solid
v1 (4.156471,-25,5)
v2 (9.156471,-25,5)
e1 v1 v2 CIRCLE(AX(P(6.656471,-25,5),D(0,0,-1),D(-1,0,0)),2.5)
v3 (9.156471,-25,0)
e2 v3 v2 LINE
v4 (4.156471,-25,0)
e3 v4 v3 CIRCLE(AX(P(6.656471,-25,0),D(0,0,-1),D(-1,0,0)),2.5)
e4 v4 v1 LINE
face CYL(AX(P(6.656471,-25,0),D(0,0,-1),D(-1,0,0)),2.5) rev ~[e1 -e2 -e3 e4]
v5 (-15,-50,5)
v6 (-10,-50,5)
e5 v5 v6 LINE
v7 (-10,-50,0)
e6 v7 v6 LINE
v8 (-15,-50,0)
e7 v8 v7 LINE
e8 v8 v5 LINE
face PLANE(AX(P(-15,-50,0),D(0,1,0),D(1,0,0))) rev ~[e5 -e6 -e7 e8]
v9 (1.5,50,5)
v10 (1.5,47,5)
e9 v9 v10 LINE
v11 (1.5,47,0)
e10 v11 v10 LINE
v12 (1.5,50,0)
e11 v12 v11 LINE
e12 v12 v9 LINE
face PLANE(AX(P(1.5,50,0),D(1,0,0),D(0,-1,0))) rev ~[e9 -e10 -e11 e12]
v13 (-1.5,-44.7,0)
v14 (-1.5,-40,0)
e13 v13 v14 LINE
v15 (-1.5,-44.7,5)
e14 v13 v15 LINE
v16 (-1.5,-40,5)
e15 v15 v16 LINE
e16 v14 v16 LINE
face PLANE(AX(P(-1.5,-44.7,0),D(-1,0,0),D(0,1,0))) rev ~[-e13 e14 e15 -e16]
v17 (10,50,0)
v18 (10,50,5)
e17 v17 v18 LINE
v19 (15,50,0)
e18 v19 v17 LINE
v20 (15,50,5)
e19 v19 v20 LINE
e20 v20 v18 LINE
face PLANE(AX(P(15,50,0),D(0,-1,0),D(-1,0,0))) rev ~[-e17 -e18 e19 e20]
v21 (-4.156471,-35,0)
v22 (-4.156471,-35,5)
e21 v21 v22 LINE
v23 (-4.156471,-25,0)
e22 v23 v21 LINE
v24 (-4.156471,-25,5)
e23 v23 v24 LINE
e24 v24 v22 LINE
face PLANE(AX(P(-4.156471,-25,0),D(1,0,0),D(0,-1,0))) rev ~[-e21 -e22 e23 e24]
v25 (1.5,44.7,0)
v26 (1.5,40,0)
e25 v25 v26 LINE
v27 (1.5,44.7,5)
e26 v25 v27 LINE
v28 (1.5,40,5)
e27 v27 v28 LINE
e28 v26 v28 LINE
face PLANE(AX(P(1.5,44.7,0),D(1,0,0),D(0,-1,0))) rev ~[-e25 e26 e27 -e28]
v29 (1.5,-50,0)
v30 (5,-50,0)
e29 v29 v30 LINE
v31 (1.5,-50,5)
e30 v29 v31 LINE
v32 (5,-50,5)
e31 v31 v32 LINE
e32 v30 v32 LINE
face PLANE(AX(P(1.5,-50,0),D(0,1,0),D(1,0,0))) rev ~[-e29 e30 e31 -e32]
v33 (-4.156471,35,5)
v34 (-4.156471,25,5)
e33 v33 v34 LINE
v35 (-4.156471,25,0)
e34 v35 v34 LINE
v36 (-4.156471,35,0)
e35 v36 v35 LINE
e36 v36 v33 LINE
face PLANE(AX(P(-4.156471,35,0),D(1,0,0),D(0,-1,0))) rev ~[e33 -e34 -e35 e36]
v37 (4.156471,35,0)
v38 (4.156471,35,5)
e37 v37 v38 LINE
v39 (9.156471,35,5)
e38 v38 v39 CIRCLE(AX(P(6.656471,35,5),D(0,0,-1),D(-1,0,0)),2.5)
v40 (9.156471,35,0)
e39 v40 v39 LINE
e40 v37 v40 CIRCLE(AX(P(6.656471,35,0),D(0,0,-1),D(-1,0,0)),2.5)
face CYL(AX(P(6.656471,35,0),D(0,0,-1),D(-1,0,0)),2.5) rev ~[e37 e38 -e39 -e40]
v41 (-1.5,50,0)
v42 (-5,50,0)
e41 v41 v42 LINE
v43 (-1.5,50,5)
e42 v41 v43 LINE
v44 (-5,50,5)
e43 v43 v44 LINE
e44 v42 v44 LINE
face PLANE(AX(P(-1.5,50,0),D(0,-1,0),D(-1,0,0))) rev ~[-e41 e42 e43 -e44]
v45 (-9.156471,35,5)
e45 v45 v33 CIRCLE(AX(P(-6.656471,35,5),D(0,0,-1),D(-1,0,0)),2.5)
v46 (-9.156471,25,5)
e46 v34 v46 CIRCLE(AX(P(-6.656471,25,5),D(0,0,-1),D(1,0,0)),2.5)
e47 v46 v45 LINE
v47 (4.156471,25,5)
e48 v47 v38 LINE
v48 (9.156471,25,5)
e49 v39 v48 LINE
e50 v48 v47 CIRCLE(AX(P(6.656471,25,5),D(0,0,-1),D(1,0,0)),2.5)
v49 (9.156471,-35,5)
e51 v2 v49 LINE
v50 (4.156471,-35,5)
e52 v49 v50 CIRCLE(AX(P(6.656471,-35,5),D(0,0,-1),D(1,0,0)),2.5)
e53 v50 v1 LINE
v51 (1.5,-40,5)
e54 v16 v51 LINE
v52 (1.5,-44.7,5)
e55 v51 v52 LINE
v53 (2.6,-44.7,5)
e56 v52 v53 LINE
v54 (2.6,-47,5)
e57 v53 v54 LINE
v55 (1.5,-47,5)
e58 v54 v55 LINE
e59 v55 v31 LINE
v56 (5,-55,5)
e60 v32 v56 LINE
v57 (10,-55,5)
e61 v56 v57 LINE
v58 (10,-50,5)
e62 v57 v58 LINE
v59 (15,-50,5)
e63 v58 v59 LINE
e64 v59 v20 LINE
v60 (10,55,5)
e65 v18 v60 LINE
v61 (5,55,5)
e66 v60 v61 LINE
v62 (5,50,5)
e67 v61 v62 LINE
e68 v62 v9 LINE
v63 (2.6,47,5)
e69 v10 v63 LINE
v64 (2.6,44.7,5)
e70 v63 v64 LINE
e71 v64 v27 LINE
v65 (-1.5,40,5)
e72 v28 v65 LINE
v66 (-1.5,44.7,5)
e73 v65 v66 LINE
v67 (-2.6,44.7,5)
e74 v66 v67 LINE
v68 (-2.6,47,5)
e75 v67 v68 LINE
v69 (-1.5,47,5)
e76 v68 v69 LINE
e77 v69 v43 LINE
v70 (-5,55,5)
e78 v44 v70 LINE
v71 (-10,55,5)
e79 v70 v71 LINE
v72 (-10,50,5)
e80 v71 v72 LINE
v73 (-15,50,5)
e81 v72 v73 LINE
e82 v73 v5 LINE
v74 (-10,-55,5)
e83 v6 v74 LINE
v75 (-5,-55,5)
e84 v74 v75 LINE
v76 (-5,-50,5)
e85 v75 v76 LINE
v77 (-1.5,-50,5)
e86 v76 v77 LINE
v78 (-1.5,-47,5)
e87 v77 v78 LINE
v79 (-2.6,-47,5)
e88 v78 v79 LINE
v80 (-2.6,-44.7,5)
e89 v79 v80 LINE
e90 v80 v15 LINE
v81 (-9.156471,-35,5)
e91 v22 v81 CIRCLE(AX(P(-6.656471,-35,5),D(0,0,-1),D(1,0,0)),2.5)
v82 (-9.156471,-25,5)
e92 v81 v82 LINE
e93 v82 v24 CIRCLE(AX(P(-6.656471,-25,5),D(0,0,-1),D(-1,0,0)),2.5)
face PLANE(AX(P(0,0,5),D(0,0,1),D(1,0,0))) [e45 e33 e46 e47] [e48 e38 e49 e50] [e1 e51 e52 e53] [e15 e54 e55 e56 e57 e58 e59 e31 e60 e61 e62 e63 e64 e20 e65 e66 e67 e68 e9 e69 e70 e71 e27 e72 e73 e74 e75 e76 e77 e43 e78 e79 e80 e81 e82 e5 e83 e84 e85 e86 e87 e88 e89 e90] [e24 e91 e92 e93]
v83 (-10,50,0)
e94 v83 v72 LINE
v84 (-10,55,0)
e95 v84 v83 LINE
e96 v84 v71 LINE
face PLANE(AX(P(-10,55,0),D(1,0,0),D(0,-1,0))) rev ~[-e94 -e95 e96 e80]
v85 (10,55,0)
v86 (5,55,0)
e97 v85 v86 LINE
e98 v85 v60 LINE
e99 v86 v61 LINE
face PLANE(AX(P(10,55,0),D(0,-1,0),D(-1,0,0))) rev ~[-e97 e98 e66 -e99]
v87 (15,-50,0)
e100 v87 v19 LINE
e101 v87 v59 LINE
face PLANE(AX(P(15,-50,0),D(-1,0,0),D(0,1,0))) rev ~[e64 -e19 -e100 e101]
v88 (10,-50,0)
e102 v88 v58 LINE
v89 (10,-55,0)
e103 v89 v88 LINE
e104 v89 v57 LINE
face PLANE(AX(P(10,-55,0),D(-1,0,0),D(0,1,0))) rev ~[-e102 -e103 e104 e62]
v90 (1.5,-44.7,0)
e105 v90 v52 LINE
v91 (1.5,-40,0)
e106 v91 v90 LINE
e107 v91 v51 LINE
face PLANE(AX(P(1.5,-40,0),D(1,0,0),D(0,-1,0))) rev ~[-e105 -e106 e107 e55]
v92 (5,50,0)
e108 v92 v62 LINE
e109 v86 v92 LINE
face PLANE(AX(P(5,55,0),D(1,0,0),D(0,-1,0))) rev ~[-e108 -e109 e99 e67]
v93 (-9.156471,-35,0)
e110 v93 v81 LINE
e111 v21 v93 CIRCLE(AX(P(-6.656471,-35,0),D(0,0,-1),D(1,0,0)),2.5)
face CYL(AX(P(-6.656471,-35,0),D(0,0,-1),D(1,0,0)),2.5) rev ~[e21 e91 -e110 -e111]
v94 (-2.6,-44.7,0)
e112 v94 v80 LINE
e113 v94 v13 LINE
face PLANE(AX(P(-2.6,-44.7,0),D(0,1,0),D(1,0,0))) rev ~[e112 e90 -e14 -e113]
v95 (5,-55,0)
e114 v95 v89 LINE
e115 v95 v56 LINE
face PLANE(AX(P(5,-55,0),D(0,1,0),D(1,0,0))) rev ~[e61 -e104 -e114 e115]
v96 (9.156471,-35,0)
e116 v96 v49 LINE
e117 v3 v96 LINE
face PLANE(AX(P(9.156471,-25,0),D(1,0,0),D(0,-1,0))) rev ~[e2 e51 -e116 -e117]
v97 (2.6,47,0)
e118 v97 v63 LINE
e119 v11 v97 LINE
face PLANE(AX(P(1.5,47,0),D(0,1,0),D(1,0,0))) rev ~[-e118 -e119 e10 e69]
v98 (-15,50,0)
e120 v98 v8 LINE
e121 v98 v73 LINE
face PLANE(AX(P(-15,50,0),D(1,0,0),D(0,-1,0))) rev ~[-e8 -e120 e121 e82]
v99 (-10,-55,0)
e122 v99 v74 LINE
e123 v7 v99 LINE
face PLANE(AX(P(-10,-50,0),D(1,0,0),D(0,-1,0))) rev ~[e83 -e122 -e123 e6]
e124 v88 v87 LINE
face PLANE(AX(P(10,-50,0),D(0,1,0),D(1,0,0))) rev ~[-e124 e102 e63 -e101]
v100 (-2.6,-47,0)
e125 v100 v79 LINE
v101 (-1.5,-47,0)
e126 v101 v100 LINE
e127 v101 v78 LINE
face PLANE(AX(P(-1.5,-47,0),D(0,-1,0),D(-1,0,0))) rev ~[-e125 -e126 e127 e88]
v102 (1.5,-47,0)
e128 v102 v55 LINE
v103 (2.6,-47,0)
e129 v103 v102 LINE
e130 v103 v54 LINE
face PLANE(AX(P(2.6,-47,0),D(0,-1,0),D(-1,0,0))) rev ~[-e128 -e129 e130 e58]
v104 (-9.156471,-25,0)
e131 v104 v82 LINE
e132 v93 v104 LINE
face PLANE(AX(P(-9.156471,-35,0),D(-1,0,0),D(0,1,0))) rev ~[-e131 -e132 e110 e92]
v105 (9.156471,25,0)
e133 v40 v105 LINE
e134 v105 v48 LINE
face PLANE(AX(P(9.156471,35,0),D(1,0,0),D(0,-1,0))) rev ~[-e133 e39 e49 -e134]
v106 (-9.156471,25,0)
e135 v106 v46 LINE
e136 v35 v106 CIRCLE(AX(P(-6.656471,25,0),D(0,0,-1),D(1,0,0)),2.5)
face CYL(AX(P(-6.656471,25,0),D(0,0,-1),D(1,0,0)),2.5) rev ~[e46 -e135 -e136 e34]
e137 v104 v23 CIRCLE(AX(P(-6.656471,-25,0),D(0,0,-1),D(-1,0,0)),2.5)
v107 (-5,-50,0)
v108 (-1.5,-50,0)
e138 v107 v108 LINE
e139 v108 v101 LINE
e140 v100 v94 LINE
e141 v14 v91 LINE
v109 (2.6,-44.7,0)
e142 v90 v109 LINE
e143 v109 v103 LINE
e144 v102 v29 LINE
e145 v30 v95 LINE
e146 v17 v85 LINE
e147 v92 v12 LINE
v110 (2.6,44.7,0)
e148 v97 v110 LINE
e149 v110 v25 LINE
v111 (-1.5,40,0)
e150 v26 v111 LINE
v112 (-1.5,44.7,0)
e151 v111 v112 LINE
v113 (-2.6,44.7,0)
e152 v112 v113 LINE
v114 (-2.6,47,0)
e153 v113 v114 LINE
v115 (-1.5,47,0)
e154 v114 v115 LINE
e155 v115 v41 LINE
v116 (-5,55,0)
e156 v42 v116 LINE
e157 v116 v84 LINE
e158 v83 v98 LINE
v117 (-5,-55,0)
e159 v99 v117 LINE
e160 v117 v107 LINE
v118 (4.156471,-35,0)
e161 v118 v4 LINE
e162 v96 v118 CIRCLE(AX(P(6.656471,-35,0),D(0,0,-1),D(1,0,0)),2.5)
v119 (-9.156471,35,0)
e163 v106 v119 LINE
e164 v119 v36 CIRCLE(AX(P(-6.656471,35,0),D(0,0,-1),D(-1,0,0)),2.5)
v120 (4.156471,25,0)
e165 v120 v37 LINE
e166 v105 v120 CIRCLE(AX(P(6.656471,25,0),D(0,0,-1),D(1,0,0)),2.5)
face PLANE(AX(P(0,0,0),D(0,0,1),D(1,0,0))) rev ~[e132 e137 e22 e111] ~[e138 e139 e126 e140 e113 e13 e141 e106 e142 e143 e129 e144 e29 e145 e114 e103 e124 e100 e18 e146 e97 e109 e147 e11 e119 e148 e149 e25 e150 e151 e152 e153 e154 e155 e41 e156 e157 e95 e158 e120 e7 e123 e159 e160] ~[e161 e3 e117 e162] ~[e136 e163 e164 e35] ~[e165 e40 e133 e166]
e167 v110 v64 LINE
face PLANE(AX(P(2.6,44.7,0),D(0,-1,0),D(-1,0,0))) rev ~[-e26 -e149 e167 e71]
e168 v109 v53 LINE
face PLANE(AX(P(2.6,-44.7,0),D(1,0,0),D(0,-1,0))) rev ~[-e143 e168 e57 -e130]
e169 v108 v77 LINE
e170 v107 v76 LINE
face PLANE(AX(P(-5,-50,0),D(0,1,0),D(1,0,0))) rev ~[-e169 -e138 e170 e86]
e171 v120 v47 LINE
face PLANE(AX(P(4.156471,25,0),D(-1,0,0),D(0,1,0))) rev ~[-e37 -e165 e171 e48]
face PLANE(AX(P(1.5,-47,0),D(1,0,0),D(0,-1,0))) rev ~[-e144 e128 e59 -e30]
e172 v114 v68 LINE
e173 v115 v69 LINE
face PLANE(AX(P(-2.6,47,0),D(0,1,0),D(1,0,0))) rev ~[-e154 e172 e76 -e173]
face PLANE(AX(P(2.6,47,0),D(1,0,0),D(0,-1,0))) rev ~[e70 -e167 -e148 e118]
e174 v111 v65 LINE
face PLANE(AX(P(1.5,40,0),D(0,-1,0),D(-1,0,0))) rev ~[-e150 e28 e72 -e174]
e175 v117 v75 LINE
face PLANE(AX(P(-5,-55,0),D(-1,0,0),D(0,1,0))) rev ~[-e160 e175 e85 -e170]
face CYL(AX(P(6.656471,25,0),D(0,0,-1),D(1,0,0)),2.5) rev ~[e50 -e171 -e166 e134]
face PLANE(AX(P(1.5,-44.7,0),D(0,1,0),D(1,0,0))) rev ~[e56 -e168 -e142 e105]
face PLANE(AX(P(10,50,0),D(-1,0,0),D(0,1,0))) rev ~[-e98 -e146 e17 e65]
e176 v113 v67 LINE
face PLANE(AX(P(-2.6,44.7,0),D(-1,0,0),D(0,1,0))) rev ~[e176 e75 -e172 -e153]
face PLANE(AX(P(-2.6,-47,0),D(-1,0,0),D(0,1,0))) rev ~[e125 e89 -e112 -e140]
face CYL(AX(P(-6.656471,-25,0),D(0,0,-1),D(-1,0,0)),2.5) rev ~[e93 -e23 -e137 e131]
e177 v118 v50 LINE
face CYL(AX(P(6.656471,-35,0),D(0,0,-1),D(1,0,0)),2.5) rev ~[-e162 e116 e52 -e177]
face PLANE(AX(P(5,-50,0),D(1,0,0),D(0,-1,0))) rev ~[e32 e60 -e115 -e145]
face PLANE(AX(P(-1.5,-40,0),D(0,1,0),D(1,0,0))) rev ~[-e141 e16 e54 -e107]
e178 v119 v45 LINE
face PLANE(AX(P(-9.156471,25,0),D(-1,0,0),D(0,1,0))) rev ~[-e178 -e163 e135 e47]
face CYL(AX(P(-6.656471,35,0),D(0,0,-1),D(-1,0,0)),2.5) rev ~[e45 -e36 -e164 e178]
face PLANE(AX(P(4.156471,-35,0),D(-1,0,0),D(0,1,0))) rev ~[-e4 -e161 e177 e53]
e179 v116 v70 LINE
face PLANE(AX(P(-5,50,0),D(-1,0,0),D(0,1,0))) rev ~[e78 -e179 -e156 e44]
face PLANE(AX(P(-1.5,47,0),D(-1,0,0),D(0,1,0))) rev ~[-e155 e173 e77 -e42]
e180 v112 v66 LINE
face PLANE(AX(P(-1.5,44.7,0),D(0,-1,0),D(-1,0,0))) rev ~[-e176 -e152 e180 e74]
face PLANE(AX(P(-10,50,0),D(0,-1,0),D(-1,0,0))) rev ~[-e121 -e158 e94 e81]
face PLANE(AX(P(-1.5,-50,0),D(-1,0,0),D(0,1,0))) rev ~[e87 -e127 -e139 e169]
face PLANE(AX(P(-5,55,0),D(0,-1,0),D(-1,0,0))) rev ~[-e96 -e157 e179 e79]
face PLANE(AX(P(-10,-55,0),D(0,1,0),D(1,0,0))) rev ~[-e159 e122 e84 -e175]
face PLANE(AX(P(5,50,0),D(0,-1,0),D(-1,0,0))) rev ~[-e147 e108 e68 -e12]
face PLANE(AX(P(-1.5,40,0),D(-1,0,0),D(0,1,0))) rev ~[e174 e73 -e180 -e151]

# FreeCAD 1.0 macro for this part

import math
import FreeCAD as App
import Part
import Sketcher
from FreeCAD import Vector
Q = App.Units.Quantity


def add_polygon(sketch, points):
    """Adds a closed chain of lines whose ends are joined by coincident constraints."""
    first, n = sketch.GeometryCount, len(points)
    for a, b in zip(points, points[1:] + points[:1]):
        sketch.addGeometry(Part.LineSegment(App.Vector(*a, 0), App.Vector(*b, 0)), False)
    for i in range(n):
        sketch.addConstraint(Sketcher.Constraint("Coincident", first + i, 2, first + (i + 1) % n, 1))

doc = App.newDocument("Part")
params = doc.addObject("Spreadsheet::Sheet", "Params")
for row, (alias, value) in enumerate([
    ("sketch1_radius", "2.5 mm"),
    ("sketch1_width", "5 mm"),
    ("sketch1_width2", "3 mm"),
    ("sketch1_height", "100 mm"),
    ("sketch1_height2", "10 mm"),
    ("pad1_length", "5 mm"),
], start=1):
    params.set(f"A{row}", alias)
    params.set(f"B{row}", "=" + value)
    params.setAlias(f"B{row}", alias)

body = doc.addObject("PartDesign::Body", "Body")

# Sketch on XY plane
sketch1 = body.newObject("Sketcher::SketchObject", "Sketch")
sketch1.AttachmentSupport = (doc.getObject("XY_Plane"), [""])
sketch1.MapMode = "FlatFace"
add_polygon(sketch1, [(-10, 50), (-15, 50), (-15, -50), (-10, -50), (-10, -55), (-5, -55), (-5, -50), (-1.5, -50), (-1.5, -47), (-2.6, -47), (-2.6, -44.7), (-1.5, -44.7), (-1.5, -40), (1.5, -40), (1.5, -44.7), (2.6, -44.7), (2.6, -47), (1.5, -47), (1.5, -50), (5, -50), (5, -55), (10, -55), (10, -50), (15, -50), (15, 50), (10, 50), (10, 55), (5, 55), (5, 50), (1.5, 50), (1.5, 47), (2.6, 47), (2.6, 44.7), (1.5, 44.7), (1.5, 40), (-1.5, 40), (-1.5, 44.7), (-2.6, 44.7), (-2.6, 47), (-1.5, 47), (-1.5, 50), (-5, 50), (-5, 55), (-10, 55)])  # lines 0-43
sketch1.addGeometry(Part.LineSegment(Vector(-4.156471, -25, 0), Vector(-4.156471, -35, 0)), False)  # 44
sketch1.addGeometry(Part.ArcOfCircle(Part.Circle(Vector(-6.656471, -35, 0), Vector(0, 0, 1), 2.5), math.radians(180), math.radians(360)), False)  # 45
sketch1.addGeometry(Part.LineSegment(Vector(-9.156471, -35, 0), Vector(-9.156471, -25, 0)), False)  # 46
sketch1.addGeometry(Part.ArcOfCircle(Part.Circle(Vector(-6.656471, -25, 0), Vector(0, 0, 1), 2.5), math.radians(0), math.radians(180)), False)  # 47
sketch1.addGeometry(Part.ArcOfCircle(Part.Circle(Vector(6.656471, -25, 0), Vector(0, 0, 1), 2.5), math.radians(0), math.radians(180)), False)  # 48
sketch1.addGeometry(Part.LineSegment(Vector(9.156471, -25, 0), Vector(9.156471, -35, 0)), False)  # 49
sketch1.addGeometry(Part.ArcOfCircle(Part.Circle(Vector(6.656471, -35, 0), Vector(0, 0, 1), 2.5), math.radians(180), math.radians(360)), False)  # 50
sketch1.addGeometry(Part.LineSegment(Vector(4.156471, -35, 0), Vector(4.156471, -25, 0)), False)  # 51
sketch1.addGeometry(Part.ArcOfCircle(Part.Circle(Vector(-6.656471, 25, 0), Vector(0, 0, 1), 2.5), math.radians(180), math.radians(360)), False)  # 52
sketch1.addGeometry(Part.LineSegment(Vector(-9.156471, 25, 0), Vector(-9.156471, 35, 0)), False)  # 53
sketch1.addGeometry(Part.ArcOfCircle(Part.Circle(Vector(-6.656471, 35, 0), Vector(0, 0, 1), 2.5), math.radians(0), math.radians(180)), False)  # 54
sketch1.addGeometry(Part.LineSegment(Vector(-4.156471, 35, 0), Vector(-4.156471, 25, 0)), False)  # 55
sketch1.addGeometry(Part.LineSegment(Vector(4.156471, 25, 0), Vector(4.156471, 35, 0)), False)  # 56
sketch1.addGeometry(Part.ArcOfCircle(Part.Circle(Vector(6.656471, 35, 0), Vector(0, 0, 1), 2.5), math.radians(0), math.radians(180)), False)  # 57
sketch1.addGeometry(Part.LineSegment(Vector(9.156471, 35, 0), Vector(9.156471, 25, 0)), False)  # 58
sketch1.addGeometry(Part.ArcOfCircle(Part.Circle(Vector(6.656471, 25, 0), Vector(0, 0, 1), 2.5), math.radians(180), math.radians(360)), False)  # 59
sketch1.addConstraint([
    Sketcher.Constraint("Tangent", 44, 2, 45, 2),
    Sketcher.Constraint("Tangent", 45, 1, 46, 1),
    Sketcher.Constraint("Tangent", 46, 2, 47, 2),
    Sketcher.Constraint("Tangent", 47, 1, 44, 1),
    Sketcher.Constraint("Tangent", 48, 1, 49, 1),
    Sketcher.Constraint("Tangent", 49, 2, 50, 2),
    Sketcher.Constraint("Tangent", 50, 1, 51, 1),
    Sketcher.Constraint("Tangent", 51, 2, 48, 2),
    Sketcher.Constraint("Tangent", 52, 1, 53, 1),
    Sketcher.Constraint("Tangent", 53, 2, 54, 2),
    Sketcher.Constraint("Tangent", 54, 1, 55, 1),
    Sketcher.Constraint("Tangent", 55, 2, 52, 2),
    Sketcher.Constraint("Tangent", 56, 2, 57, 2),
    Sketcher.Constraint("Tangent", 57, 1, 58, 1),
    Sketcher.Constraint("Tangent", 58, 2, 59, 2),
    Sketcher.Constraint("Tangent", 59, 1, 56, 1),
    Sketcher.Constraint("Horizontal", 0),
    Sketcher.Constraint("Vertical", 1),
    Sketcher.Constraint("Horizontal", 2),
    Sketcher.Constraint("Vertical", 3),
    Sketcher.Constraint("Horizontal", 4),
    Sketcher.Constraint("Vertical", 5),
    Sketcher.Constraint("Horizontal", 6),
    Sketcher.Constraint("Vertical", 7),
    Sketcher.Constraint("Horizontal", 8),
    Sketcher.Constraint("Vertical", 9),
    Sketcher.Constraint("Horizontal", 10),
    Sketcher.Constraint("Vertical", 11),
    Sketcher.Constraint("Horizontal", 12),
    Sketcher.Constraint("Vertical", 13),
    Sketcher.Constraint("Horizontal", 14),
    Sketcher.Constraint("Vertical", 15),
    Sketcher.Constraint("Horizontal", 16),
    Sketcher.Constraint("Vertical", 17),
    Sketcher.Constraint("Horizontal", 18),
    Sketcher.Constraint("Vertical", 19),
    Sketcher.Constraint("Horizontal", 20),
    Sketcher.Constraint("Vertical", 21),
    Sketcher.Constraint("Horizontal", 22),
    Sketcher.Constraint("Vertical", 23),
    Sketcher.Constraint("Horizontal", 24),
    Sketcher.Constraint("Vertical", 25),
    Sketcher.Constraint("Horizontal", 26),
    Sketcher.Constraint("Vertical", 27),
    Sketcher.Constraint("Horizontal", 28),
    Sketcher.Constraint("Vertical", 29),
    Sketcher.Constraint("Horizontal", 30),
    Sketcher.Constraint("Vertical", 31),
    Sketcher.Constraint("Horizontal", 32),
    Sketcher.Constraint("Vertical", 33),
    Sketcher.Constraint("Horizontal", 34),
    Sketcher.Constraint("Vertical", 35),
    Sketcher.Constraint("Horizontal", 36),
    Sketcher.Constraint("Vertical", 37),
    Sketcher.Constraint("Horizontal", 38),
    Sketcher.Constraint("Vertical", 39),
    Sketcher.Constraint("Horizontal", 40),
    Sketcher.Constraint("Vertical", 41),
    Sketcher.Constraint("Horizontal", 42),
    Sketcher.Constraint("Vertical", 43),
    Sketcher.Constraint("Vertical", 44),
    Sketcher.Constraint("Vertical", 46),
    Sketcher.Constraint("Vertical", 49),
    Sketcher.Constraint("Vertical", 51),
    Sketcher.Constraint("Vertical", 53),
    Sketcher.Constraint("Vertical", 55),
    Sketcher.Constraint("Vertical", 56),
    Sketcher.Constraint("Vertical", 58),
    Sketcher.Constraint("Equal", 47, 48),
    Sketcher.Constraint("Equal", 50, 52),
    Sketcher.Constraint("Equal", 54, 57),
    Sketcher.Constraint("Symmetric", 48, 3, 52, 3, -1, 1),
    Sketcher.Constraint("Symmetric", 45, 3, 57, 3, -1, 1),
    Sketcher.Constraint("Symmetric", 0, 2, 22, 2, -1, 1),
    Sketcher.Constraint("Symmetric", 2, 2, 24, 2, -1, 1),
    Sketcher.Constraint("Symmetric", 4, 2, 26, 2, -1, 1),
    Sketcher.Constraint("Symmetric", 6, 2, 28, 2, -1, 1),
    Sketcher.Constraint("Symmetric", 8, 2, 30, 2, -1, 1),
    Sketcher.Constraint("Symmetric", 10, 2, 32, 2, -1, 1),
    Sketcher.Constraint("Symmetric", 12, 2, 34, 2, -1, 1),
    Sketcher.Constraint("Symmetric", 14, 2, 36, 2, -1, 1),
    Sketcher.Constraint("Symmetric", 16, 2, 38, 2, -1, 1),
    Sketcher.Constraint("Symmetric", 18, 2, 40, 2, -1, 1),
    Sketcher.Constraint("Symmetric", 20, 2, 42, 2, -1, 1),
    Sketcher.Constraint("Symmetric", 47, 3, 48, 3, -2),
    Sketcher.Constraint("Symmetric", 10, 2, 13, 2, -2),
    Sketcher.Constraint("Symmetric", 8, 2, 15, 2, -2),
    Sketcher.Constraint("Symmetric", 6, 2, 17, 2, -2),
    Sketcher.Constraint("Symmetric", 4, 2, 19, 2, -2),
    Sketcher.Constraint("Symmetric", 2, 2, 21, 2, -2),
    Sketcher.Constraint("Horizontal", 45, 3, 50, 3),
    Sketcher.Constraint("Horizontal", 54, 3, 57, 3),
    Sketcher.Constraint("Horizontal", 52, 3, 59, 3),
    Sketcher.Constraint("Horizontal", 2, 2, 5, 2),
    Sketcher.Constraint("Vertical", 7, 2, 10, 2),
    Sketcher.Constraint("Equal", 2, 4),
    Sketcher.Constraint("Equal", 42, 3),
    Sketcher.Constraint("Equal", 34, 7),
    Sketcher.Constraint("Radius", 45, Q("2.5 mm")),
    Sketcher.Constraint("DistanceX", 0, 2, 0, 1, Q("5 mm")),
    Sketcher.Constraint("DistanceX", 12, 1, 12, 2, Q("3 mm")),
    Sketcher.Constraint("DistanceY", 1, 2, 1, 1, Q("100 mm")),
    Sketcher.Constraint("DistanceY", 44, 2, 44, 1, Q("10 mm")),
    Sketcher.Constraint("DistanceX", 6, 1, 6, 2, Q("3.5 mm")),
    Sketcher.Constraint("DistanceX", 8, 2, 8, 1, Q("1.1 mm")),
    Sketcher.Constraint("DistanceY", 9, 1, 9, 2, Q("2.3 mm")),
    Sketcher.Constraint("DistanceY", 11, 1, 11, 2, Q("4.7 mm")),
    Sketcher.Constraint("DistanceY", 45, 3, -1, 1, Q("35 mm")),
    Sketcher.Constraint("DistanceX", 45, 3, -1, 1, Q("6.656471 mm")),
])
sketch1.setExpression("Constraints[142]", "Params.sketch1_radius")
sketch1.setExpression("Constraints[143]", "Params.sketch1_width")
sketch1.setExpression("Constraints[144]", "Params.sketch1_width2")
sketch1.setExpression("Constraints[145]", "Params.sketch1_height")
sketch1.setExpression("Constraints[146]", "Params.sketch1_height2")
pad1 = body.newObject("PartDesign::Pad", "Pad")
pad1.Profile = sketch1
pad1.setExpression("Length", "Params.pad1_length")

doc.recompute()
